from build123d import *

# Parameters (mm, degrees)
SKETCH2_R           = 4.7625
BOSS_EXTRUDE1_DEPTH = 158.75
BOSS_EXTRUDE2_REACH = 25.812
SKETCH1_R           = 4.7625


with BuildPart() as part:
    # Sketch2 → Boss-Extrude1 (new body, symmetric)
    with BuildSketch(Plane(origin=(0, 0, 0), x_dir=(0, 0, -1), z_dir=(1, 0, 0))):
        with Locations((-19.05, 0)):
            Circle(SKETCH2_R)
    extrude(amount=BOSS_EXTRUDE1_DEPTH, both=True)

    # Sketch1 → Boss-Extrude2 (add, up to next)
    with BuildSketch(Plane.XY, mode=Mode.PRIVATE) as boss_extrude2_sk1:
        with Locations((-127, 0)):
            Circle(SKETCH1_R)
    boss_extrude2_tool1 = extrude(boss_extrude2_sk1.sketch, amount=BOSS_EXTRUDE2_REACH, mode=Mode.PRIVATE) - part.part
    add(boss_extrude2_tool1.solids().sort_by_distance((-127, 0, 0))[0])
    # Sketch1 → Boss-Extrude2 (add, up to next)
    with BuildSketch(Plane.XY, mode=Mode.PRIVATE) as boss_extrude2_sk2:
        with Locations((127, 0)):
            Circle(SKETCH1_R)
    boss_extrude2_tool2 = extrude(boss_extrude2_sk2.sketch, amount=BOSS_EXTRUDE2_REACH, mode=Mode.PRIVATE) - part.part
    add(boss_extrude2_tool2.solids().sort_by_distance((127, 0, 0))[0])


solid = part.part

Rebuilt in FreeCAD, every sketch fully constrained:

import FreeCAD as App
import Part
import Sketcher
Q = App.Units.Quantity

doc = App.newDocument("Part")
body = doc.addObject("PartDesign::Body", "Body")

# Sketch on YZ plane
sketch1 = body.newObject("Sketcher::SketchObject", "Sketch")
sketch1.AttachmentSupport = (doc.getObject("YZ_Plane"), [""])
sketch1.MapMode = "FlatFace"
sketch1.addGeometry(Part.Circle(App.Vector(0, 19.1, 0), App.Vector(0, 0, 1), 4.8), False)
sketch1.addConstraint([
    Sketcher.Constraint("PointOnObject", 0, 3, -2),
    Sketcher.Constraint("Diameter", 0, Q("0.375 in")),
    Sketcher.Constraint("DistanceY", -1, 1, 0, 3, Q("0.75 in")),
])
pad1 = body.newObject("PartDesign::Pad", "Pad")
pad1.Profile = sketch1
pad1.Length = Q("12.5 in")
pad1.Midplane = True

# Sketch on XY plane
sketch2 = body.newObject("Sketcher::SketchObject", "Sketch001")
sketch2.AttachmentSupport = (doc.getObject("XY_Plane"), [""])
sketch2.MapMode = "FlatFace"
sketch2.addGeometry(Part.Circle(App.Vector(-127, 0, 0), App.Vector(0, 0, 1), 4.8), False)
sketch2.addConstraint([
    Sketcher.Constraint("PointOnObject", 0, 3, -1),
    Sketcher.Constraint("Diameter", 0, Q("0.375 in")),
    Sketcher.Constraint("DistanceX", 0, 3, -1, 1, Q("5 in")),
])
pad2 = body.newObject("PartDesign::Pad", "Pad001")
pad2.Profile = sketch2
pad2.Type = "UpToFirst"

# Sketch on XY plane
sketch3 = body.newObject("Sketcher::SketchObject", "Sketch002")
sketch3.AttachmentSupport = (doc.getObject("XY_Plane"), [""])
sketch3.MapMode = "FlatFace"
sketch3.addGeometry(Part.Circle(App.Vector(127, 0, 0), App.Vector(0, 0, 1), 4.8), False)
sketch3.addConstraint([
    Sketcher.Constraint("PointOnObject", 0, 3, -1),
    Sketcher.Constraint("Diameter", 0, Q("0.375 in")),
    Sketcher.Constraint("DistanceX", -1, 1, 0, 3, Q("5 in")),
])
pad3 = body.newObject("PartDesign::Pad", "Pad002")
pad3.Profile = sketch3
pad3.Type = "UpToFirst"

doc.recompute()
